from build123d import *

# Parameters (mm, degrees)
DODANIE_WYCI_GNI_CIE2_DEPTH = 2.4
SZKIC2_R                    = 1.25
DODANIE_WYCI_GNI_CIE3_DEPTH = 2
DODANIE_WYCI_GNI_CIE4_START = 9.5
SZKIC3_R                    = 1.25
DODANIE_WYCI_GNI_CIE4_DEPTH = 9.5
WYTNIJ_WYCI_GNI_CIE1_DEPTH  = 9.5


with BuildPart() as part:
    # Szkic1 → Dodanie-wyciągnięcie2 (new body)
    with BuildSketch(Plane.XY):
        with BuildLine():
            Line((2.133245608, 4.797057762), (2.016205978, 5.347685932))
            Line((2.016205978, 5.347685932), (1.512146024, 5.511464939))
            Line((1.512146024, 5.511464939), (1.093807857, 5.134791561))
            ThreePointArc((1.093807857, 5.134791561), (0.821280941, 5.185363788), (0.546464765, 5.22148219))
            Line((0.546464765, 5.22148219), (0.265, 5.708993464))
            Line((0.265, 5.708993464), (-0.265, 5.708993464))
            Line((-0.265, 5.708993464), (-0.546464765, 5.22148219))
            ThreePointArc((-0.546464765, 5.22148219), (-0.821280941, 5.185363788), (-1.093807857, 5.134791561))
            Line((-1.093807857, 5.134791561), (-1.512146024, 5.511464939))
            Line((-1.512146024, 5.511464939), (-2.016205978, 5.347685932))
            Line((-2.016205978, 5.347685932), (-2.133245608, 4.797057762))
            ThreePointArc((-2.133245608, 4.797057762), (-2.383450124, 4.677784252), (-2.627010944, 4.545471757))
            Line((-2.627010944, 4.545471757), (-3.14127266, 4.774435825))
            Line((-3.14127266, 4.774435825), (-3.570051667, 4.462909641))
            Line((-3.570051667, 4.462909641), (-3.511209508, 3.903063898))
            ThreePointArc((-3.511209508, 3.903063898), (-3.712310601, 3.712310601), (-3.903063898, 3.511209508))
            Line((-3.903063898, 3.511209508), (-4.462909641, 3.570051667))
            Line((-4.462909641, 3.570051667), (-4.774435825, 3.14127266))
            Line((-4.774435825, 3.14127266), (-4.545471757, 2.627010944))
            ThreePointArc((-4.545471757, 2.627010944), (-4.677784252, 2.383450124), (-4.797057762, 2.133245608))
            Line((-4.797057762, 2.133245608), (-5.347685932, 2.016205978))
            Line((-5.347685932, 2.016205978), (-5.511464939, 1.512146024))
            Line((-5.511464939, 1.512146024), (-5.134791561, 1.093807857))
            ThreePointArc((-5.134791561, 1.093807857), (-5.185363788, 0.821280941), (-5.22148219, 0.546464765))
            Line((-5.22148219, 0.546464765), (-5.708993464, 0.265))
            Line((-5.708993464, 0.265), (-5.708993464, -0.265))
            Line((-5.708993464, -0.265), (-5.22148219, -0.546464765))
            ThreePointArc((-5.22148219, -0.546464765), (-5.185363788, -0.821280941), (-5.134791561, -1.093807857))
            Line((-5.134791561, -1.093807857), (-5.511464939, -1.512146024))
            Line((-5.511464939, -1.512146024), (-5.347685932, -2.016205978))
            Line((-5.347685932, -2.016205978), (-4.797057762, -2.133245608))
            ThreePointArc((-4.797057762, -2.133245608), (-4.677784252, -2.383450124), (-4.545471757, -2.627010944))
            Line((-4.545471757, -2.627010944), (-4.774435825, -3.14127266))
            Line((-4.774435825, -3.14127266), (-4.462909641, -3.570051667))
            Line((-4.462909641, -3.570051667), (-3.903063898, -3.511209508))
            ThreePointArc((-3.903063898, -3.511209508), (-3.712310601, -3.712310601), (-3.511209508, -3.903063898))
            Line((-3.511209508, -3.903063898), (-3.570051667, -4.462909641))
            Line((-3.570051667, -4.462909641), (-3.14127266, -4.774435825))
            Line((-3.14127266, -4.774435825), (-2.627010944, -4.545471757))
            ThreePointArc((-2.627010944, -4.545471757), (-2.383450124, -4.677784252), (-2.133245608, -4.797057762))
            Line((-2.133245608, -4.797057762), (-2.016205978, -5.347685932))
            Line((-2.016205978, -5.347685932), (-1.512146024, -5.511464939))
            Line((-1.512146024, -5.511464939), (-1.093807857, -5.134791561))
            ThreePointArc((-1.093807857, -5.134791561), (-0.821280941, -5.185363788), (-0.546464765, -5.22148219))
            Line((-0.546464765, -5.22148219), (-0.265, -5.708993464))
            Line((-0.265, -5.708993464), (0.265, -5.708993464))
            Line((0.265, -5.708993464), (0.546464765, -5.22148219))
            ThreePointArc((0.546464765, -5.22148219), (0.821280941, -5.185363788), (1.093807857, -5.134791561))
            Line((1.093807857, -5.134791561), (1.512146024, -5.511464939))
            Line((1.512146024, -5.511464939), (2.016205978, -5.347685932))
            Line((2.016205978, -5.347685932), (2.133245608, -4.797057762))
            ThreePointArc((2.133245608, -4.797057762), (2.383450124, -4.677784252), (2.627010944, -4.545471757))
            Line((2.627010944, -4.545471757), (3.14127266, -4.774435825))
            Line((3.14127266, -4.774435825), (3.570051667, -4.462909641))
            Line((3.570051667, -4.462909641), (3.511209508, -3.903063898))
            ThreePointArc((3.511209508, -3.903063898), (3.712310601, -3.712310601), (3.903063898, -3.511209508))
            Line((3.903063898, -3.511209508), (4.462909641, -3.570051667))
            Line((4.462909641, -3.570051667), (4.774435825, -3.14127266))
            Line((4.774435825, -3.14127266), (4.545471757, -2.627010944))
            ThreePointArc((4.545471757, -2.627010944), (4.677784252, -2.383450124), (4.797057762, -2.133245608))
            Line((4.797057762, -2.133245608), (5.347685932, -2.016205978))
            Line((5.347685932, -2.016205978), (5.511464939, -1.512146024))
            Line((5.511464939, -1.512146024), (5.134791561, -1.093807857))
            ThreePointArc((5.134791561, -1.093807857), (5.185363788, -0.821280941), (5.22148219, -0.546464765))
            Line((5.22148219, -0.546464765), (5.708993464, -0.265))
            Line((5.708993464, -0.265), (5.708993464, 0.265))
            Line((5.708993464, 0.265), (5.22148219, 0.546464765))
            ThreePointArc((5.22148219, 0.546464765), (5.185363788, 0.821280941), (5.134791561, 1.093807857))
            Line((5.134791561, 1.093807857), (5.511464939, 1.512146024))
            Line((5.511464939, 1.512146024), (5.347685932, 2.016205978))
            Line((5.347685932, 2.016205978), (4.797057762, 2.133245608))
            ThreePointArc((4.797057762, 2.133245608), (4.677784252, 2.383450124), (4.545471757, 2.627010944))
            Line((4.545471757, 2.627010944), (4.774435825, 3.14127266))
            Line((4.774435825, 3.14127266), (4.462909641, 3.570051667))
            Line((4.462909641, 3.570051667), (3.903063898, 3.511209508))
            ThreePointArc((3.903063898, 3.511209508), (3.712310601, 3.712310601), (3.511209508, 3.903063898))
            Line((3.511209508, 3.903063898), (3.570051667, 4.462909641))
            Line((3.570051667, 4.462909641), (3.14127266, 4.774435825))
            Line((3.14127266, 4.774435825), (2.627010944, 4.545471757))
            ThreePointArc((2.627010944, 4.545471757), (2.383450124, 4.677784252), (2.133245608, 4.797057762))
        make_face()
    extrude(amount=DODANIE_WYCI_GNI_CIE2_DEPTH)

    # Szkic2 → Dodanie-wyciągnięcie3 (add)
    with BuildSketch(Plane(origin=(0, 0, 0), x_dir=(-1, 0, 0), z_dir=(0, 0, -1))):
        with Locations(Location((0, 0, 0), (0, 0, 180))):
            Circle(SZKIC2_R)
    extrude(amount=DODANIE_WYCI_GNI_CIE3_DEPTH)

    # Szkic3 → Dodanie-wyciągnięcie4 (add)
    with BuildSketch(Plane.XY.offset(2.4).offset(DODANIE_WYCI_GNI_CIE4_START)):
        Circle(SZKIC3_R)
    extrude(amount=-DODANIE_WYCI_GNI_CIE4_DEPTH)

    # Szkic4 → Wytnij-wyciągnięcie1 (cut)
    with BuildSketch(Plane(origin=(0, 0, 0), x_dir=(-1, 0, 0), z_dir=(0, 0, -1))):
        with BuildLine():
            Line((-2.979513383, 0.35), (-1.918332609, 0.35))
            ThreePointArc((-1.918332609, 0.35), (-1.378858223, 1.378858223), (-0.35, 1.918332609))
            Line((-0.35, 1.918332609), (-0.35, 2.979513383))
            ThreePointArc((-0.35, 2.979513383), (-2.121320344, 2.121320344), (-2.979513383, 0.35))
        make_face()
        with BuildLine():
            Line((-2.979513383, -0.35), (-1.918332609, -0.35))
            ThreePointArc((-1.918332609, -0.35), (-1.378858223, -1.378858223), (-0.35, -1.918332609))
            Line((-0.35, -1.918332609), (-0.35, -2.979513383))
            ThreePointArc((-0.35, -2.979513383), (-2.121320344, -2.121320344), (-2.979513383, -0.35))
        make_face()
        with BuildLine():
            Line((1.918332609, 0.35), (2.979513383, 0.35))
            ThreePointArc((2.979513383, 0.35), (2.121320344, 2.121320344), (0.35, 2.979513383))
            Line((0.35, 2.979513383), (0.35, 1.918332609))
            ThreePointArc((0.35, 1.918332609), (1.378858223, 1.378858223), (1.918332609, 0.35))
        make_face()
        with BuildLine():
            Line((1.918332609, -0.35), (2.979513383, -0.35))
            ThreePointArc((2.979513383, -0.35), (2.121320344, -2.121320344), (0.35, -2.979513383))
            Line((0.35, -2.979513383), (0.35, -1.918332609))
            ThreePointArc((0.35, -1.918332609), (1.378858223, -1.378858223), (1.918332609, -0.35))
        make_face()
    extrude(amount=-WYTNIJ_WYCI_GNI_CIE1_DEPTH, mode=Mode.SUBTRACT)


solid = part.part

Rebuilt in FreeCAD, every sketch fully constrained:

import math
import FreeCAD as App
import Part
import Sketcher
from FreeCAD import Vector
Q = App.Units.Quantity

doc = App.newDocument("Part")
body = doc.addObject("PartDesign::Body", "Body")

sketch1 = body.newObject("Sketcher::SketchObject", "Sketch")
sketch1.AttachmentSupport = (doc.getObject("XY_Plane"), [""])
sketch1.MapMode = "FlatFace"
sketch1.addGeometry(Part.LineSegment(Vector(2.1, 4.8, 0), Vector(2, 5.3, 0)), False)
sketch1.addGeometry(Part.LineSegment(Vector(2, 5.3, 0), Vector(1.5, 5.5, 0)), False)
sketch1.addGeometry(Part.LineSegment(Vector(1.5, 5.5, 0), Vector(1.1, 5.1, 0)), False)
sketch1.addGeometry(Part.ArcOfCircle(Part.Circle(Vector(0, 0, 0), Vector(0, 0, 1), 5.3), math.radians(77.97), math.radians(84.03)), False)
sketch1.addGeometry(Part.LineSegment(Vector(0.5, 5.2, 0), Vector(0.3, 5.7, 0)), False)
sketch1.addGeometry(Part.LineSegment(Vector(0.3, 5.7, 0), Vector(-0.3, 5.7, 0)), False)
sketch1.addGeometry(Part.LineSegment(Vector(-0.3, 5.7, 0), Vector(-0.5, 5.2, 0)), False)
sketch1.addGeometry(Part.ArcOfCircle(Part.Circle(Vector(0, 0, 0), Vector(0, 0, 1), 5.3), math.radians(95.97), math.radians(102.03)), False)
sketch1.addGeometry(Part.LineSegment(Vector(-1.1, 5.1, 0), Vector(-1.5, 5.5, 0)), False)
sketch1.addGeometry(Part.LineSegment(Vector(-1.5, 5.5, 0), Vector(-2, 5.3, 0)), False)
sketch1.addGeometry(Part.LineSegment(Vector(-2, 5.3, 0), Vector(-2.1, 4.8, 0)), False)
sketch1.addGeometry(Part.ArcOfCircle(Part.Circle(Vector(0, 0, 0), Vector(0, 0, 1), 5.2), math.radians(113.97), math.radians(120.03)), False)
sketch1.addGeometry(Part.LineSegment(Vector(-2.6, 4.5, 0), Vector(-3.1, 4.8, 0)), False)
sketch1.addGeometry(Part.LineSegment(Vector(-3.1, 4.8, 0), Vector(-3.6, 4.5, 0)), False)
sketch1.addGeometry(Part.LineSegment(Vector(-3.6, 4.5, 0), Vector(-3.5, 3.9, 0)), False)
sketch1.addGeometry(Part.ArcOfCircle(Part.Circle(Vector(0, 0, 0), Vector(0, 0, 1), 5.3), math.radians(131.97), math.radians(138.03)), False)
sketch1.addGeometry(Part.LineSegment(Vector(-3.9, 3.5, 0), Vector(-4.5, 3.6, 0)), False)
sketch1.addGeometry(Part.LineSegment(Vector(-4.5, 3.6, 0), Vector(-4.8, 3.1, 0)), False)
sketch1.addGeometry(Part.LineSegment(Vector(-4.8, 3.1, 0), Vector(-4.5, 2.6, 0)), False)
sketch1.addGeometry(Part.ArcOfCircle(Part.Circle(Vector(0, 0, 0), Vector(0, 0, 1), 5.2), math.radians(149.97), math.radians(156.03)), False)
sketch1.addGeometry(Part.LineSegment(Vector(-4.8, 2.1, 0), Vector(-5.3, 2, 0)), False)
sketch1.addGeometry(Part.LineSegment(Vector(-5.3, 2, 0), Vector(-5.5, 1.5, 0)), False)
sketch1.addGeometry(Part.LineSegment(Vector(-5.5, 1.5, 0), Vector(-5.1, 1.1, 0)), False)
sketch1.addGeometry(Part.ArcOfCircle(Part.Circle(Vector(0, 0, 0), Vector(0, 0, 1), 5.3), math.radians(167.97), math.radians(174.03)), False)
sketch1.addGeometry(Part.LineSegment(Vector(-5.2, 0.5, 0), Vector(-5.7, 0.3, 0)), False)
sketch1.addGeometry(Part.LineSegment(Vector(-5.7, 0.3, 0), Vector(-5.7, -0.3, 0)), False)
sketch1.addGeometry(Part.LineSegment(Vector(-5.7, -0.3, 0), Vector(-5.2, -0.5, 0)), False)
sketch1.addGeometry(Part.ArcOfCircle(Part.Circle(Vector(0, 0, 0), Vector(0, 0, 1), 5.3), math.radians(-174.03), math.radians(-167.97)), False)
sketch1.addGeometry(Part.LineSegment(Vector(-5.1, -1.1, 0), Vector(-5.5, -1.5, 0)), False)
sketch1.addGeometry(Part.LineSegment(Vector(-5.5, -1.5, 0), Vector(-5.3, -2, 0)), False)
sketch1.addGeometry(Part.LineSegment(Vector(-5.3, -2, 0), Vector(-4.8, -2.1, 0)), False)
sketch1.addGeometry(Part.ArcOfCircle(Part.Circle(Vector(0, 0, 0), Vector(0, 0, 1), 5.2), math.radians(-156.03), math.radians(-149.97)), False)
sketch1.addGeometry(Part.LineSegment(Vector(-4.5, -2.6, 0), Vector(-4.8, -3.1, 0)), False)
sketch1.addGeometry(Part.LineSegment(Vector(-4.8, -3.1, 0), Vector(-4.5, -3.6, 0)), False)
sketch1.addGeometry(Part.LineSegment(Vector(-4.5, -3.6, 0), Vector(-3.9, -3.5, 0)), False)
sketch1.addGeometry(Part.ArcOfCircle(Part.Circle(Vector(0, 0, 0), Vector(0, 0, 1), 5.3), math.radians(-138.03), math.radians(-131.97)), False)
sketch1.addGeometry(Part.LineSegment(Vector(-3.5, -3.9, 0), Vector(-3.6, -4.5, 0)), False)
sketch1.addGeometry(Part.LineSegment(Vector(-3.6, -4.5, 0), Vector(-3.1, -4.8, 0)), False)
sketch1.addGeometry(Part.LineSegment(Vector(-3.1, -4.8, 0), Vector(-2.6, -4.5, 0)), False)
sketch1.addGeometry(Part.ArcOfCircle(Part.Circle(Vector(0, 0, 0), Vector(0, 0, 1), 5.2), math.radians(-120.03), math.radians(-113.97)), False)
sketch1.addGeometry(Part.LineSegment(Vector(-2.1, -4.8, 0), Vector(-2, -5.3, 0)), False)
sketch1.addGeometry(Part.LineSegment(Vector(-2, -5.3, 0), Vector(-1.5, -5.5, 0)), False)
sketch1.addGeometry(Part.LineSegment(Vector(-1.5, -5.5, 0), Vector(-1.1, -5.1, 0)), False)
sketch1.addGeometry(Part.ArcOfCircle(Part.Circle(Vector(0, 0, 0), Vector(0, 0, 1), 5.3), math.radians(-102.03), math.radians(-95.97)), False)
sketch1.addGeometry(Part.LineSegment(Vector(-0.5, -5.2, 0), Vector(-0.3, -5.7, 0)), False)
sketch1.addGeometry(Part.LineSegment(Vector(-0.3, -5.7, 0), Vector(0.3, -5.7, 0)), False)
sketch1.addGeometry(Part.LineSegment(Vector(0.3, -5.7, 0), Vector(0.5, -5.2, 0)), False)
sketch1.addGeometry(Part.ArcOfCircle(Part.Circle(Vector(0, 0, 0), Vector(0, 0, 1), 5.3), math.radians(-84.03), math.radians(-77.97)), False)
sketch1.addGeometry(Part.LineSegment(Vector(1.1, -5.1, 0), Vector(1.5, -5.5, 0)), False)
sketch1.addGeometry(Part.LineSegment(Vector(1.5, -5.5, 0), Vector(2, -5.3, 0)), False)
sketch1.addGeometry(Part.LineSegment(Vector(2, -5.3, 0), Vector(2.1, -4.8, 0)), False)
sketch1.addGeometry(Part.ArcOfCircle(Part.Circle(Vector(0, 0, 0), Vector(0, 0, 1), 5.2), math.radians(-66.03), math.radians(-59.97)), False)
sketch1.addGeometry(Part.LineSegment(Vector(2.6, -4.5, 0), Vector(3.1, -4.8, 0)), False)
sketch1.addGeometry(Part.LineSegment(Vector(3.1, -4.8, 0), Vector(3.6, -4.5, 0)), False)
sketch1.addGeometry(Part.LineSegment(Vector(3.6, -4.5, 0), Vector(3.5, -3.9, 0)), False)
sketch1.addGeometry(Part.ArcOfCircle(Part.Circle(Vector(0, 0, 0), Vector(0, 0, 1), 5.3), math.radians(-48.03), math.radians(-41.97)), False)
sketch1.addGeometry(Part.LineSegment(Vector(3.9, -3.5, 0), Vector(4.5, -3.6, 0)), False)
sketch1.addGeometry(Part.LineSegment(Vector(4.5, -3.6, 0), Vector(4.8, -3.1, 0)), False)
sketch1.addGeometry(Part.LineSegment(Vector(4.8, -3.1, 0), Vector(4.5, -2.6, 0)), False)
sketch1.addGeometry(Part.ArcOfCircle(Part.Circle(Vector(0, 0, 0), Vector(0, 0, 1), 5.2), math.radians(-30.03), math.radians(-23.97)), False)
sketch1.addGeometry(Part.LineSegment(Vector(4.8, -2.1, 0), Vector(5.3, -2, 0)), False)
sketch1.addGeometry(Part.LineSegment(Vector(5.3, -2, 0), Vector(5.5, -1.5, 0)), False)
sketch1.addGeometry(Part.LineSegment(Vector(5.5, -1.5, 0), Vector(5.1, -1.1, 0)), False)
sketch1.addGeometry(Part.ArcOfCircle(Part.Circle(Vector(0, 0, 0), Vector(0, 0, 1), 5.3), math.radians(-12.03), math.radians(-5.97)), False)
sketch1.addGeometry(Part.LineSegment(Vector(5.2, -0.5, 0), Vector(5.7, -0.3, 0)), False)
sketch1.addGeometry(Part.LineSegment(Vector(5.7, -0.3, 0), Vector(5.7, 0.3, 0)), False)
sketch1.addGeometry(Part.LineSegment(Vector(5.7, 0.3, 0), Vector(5.2, 0.5, 0)), False)
sketch1.addGeometry(Part.ArcOfCircle(Part.Circle(Vector(0, 0, 0), Vector(0, 0, 1), 5.3), math.radians(5.97), math.radians(12.03)), False)
sketch1.addGeometry(Part.LineSegment(Vector(5.1, 1.1, 0), Vector(5.5, 1.5, 0)), False)
sketch1.addGeometry(Part.LineSegment(Vector(5.5, 1.5, 0), Vector(5.3, 2, 0)), False)
sketch1.addGeometry(Part.LineSegment(Vector(5.3, 2, 0), Vector(4.8, 2.1, 0)), False)
sketch1.addGeometry(Part.ArcOfCircle(Part.Circle(Vector(0, 0, 0), Vector(0, 0, 1), 5.2), math.radians(23.97), math.radians(30.03)), False)
sketch1.addGeometry(Part.LineSegment(Vector(4.5, 2.6, 0), Vector(4.8, 3.1, 0)), False)
sketch1.addGeometry(Part.LineSegment(Vector(4.8, 3.1, 0), Vector(4.5, 3.6, 0)), False)
sketch1.addGeometry(Part.LineSegment(Vector(4.5, 3.6, 0), Vector(3.9, 3.5, 0)), False)
sketch1.addGeometry(Part.ArcOfCircle(Part.Circle(Vector(0, 0, 0), Vector(0, 0, 1), 5.3), math.radians(41.97), math.radians(48.03)), False)
sketch1.addGeometry(Part.LineSegment(Vector(3.5, 3.9, 0), Vector(3.6, 4.5, 0)), False)
sketch1.addGeometry(Part.LineSegment(Vector(3.6, 4.5, 0), Vector(3.1, 4.8, 0)), False)
sketch1.addGeometry(Part.LineSegment(Vector(3.1, 4.8, 0), Vector(2.6, 4.5, 0)), False)
sketch1.addGeometry(Part.ArcOfCircle(Part.Circle(Vector(0, 0, 0), Vector(0, 0, 1), 5.2), math.radians(59.97), math.radians(66.03)), False)
sketch1.addConstraint(Sketcher.Constraint("Coincident", 0, 2, 1, 1))
sketch1.addConstraint(Sketcher.Constraint("Coincident", 1, 2, 2, 1))
sketch1.addConstraint(Sketcher.Constraint("Coincident", 2, 2, 3, 1))
sketch1.addConstraint(Sketcher.Constraint("Coincident", 3, 2, 4, 1))
sketch1.addConstraint(Sketcher.Constraint("Coincident", 4, 2, 5, 1))
sketch1.addConstraint(Sketcher.Constraint("Coincident", 5, 2, 6, 1))
sketch1.addConstraint(Sketcher.Constraint("Coincident", 6, 2, 7, 1))
sketch1.addConstraint(Sketcher.Constraint("Coincident", 7, 2, 8, 1))
sketch1.addConstraint(Sketcher.Constraint("Coincident", 8, 2, 9, 1))
sketch1.addConstraint(Sketcher.Constraint("Coincident", 9, 2, 10, 1))
sketch1.addConstraint(Sketcher.Constraint("Coincident", 10, 2, 11, 1))
sketch1.addConstraint(Sketcher.Constraint("Coincident", 11, 2, 12, 1))
sketch1.addConstraint(Sketcher.Constraint("Coincident", 12, 2, 13, 1))
sketch1.addConstraint(Sketcher.Constraint("Coincident", 13, 2, 14, 1))
sketch1.addConstraint(Sketcher.Constraint("Coincident", 14, 2, 15, 1))
sketch1.addConstraint(Sketcher.Constraint("Coincident", 15, 2, 16, 1))
sketch1.addConstraint(Sketcher.Constraint("Coincident", 16, 2, 17, 1))
sketch1.addConstraint(Sketcher.Constraint("Coincident", 17, 2, 18, 1))
sketch1.addConstraint(Sketcher.Constraint("Coincident", 18, 2, 19, 1))
sketch1.addConstraint(Sketcher.Constraint("Coincident", 19, 2, 20, 1))
sketch1.addConstraint(Sketcher.Constraint("Coincident", 20, 2, 21, 1))
sketch1.addConstraint(Sketcher.Constraint("Coincident", 21, 2, 22, 1))
sketch1.addConstraint(Sketcher.Constraint("Coincident", 22, 2, 23, 1))
sketch1.addConstraint(Sketcher.Constraint("Coincident", 23, 2, 24, 1))
sketch1.addConstraint(Sketcher.Constraint("Coincident", 24, 2, 25, 1))
sketch1.addConstraint(Sketcher.Constraint("Coincident", 25, 2, 26, 1))
sketch1.addConstraint(Sketcher.Constraint("Coincident", 26, 2, 27, 1))
sketch1.addConstraint(Sketcher.Constraint("Coincident", 27, 2, 28, 1))
sketch1.addConstraint(Sketcher.Constraint("Coincident", 28, 2, 29, 1))
sketch1.addConstraint(Sketcher.Constraint("Coincident", 29, 2, 30, 1))
sketch1.addConstraint(Sketcher.Constraint("Coincident", 30, 2, 31, 1))
sketch1.addConstraint(Sketcher.Constraint("Coincident", 31, 2, 32, 1))
sketch1.addConstraint(Sketcher.Constraint("Coincident", 32, 2, 33, 1))
sketch1.addConstraint(Sketcher.Constraint("Coincident", 33, 2, 34, 1))
sketch1.addConstraint(Sketcher.Constraint("Coincident", 34, 2, 35, 1))
sketch1.addConstraint(Sketcher.Constraint("Coincident", 35, 2, 36, 1))
sketch1.addConstraint(Sketcher.Constraint("Coincident", 36, 2, 37, 1))
sketch1.addConstraint(Sketcher.Constraint("Coincident", 37, 2, 38, 1))
sketch1.addConstraint(Sketcher.Constraint("Coincident", 38, 2, 39, 1))
sketch1.addConstraint(Sketcher.Constraint("Coincident", 39, 2, 40, 1))
sketch1.addConstraint(Sketcher.Constraint("Coincident", 40, 2, 41, 1))
sketch1.addConstraint(Sketcher.Constraint("Coincident", 41, 2, 42, 1))
sketch1.addConstraint(Sketcher.Constraint("Coincident", 42, 2, 43, 1))
sketch1.addConstraint(Sketcher.Constraint("Coincident", 43, 2, 44, 1))
sketch1.addConstraint(Sketcher.Constraint("Coincident", 44, 2, 45, 1))
sketch1.addConstraint(Sketcher.Constraint("Coincident", 45, 2, 46, 1))
sketch1.addConstraint(Sketcher.Constraint("Coincident", 46, 2, 47, 1))
sketch1.addConstraint(Sketcher.Constraint("Coincident", 47, 2, 48, 1))
sketch1.addConstraint(Sketcher.Constraint("Coincident", 48, 2, 49, 1))
sketch1.addConstraint(Sketcher.Constraint("Coincident", 49, 2, 50, 1))
sketch1.addConstraint(Sketcher.Constraint("Coincident", 50, 2, 51, 1))
sketch1.addConstraint(Sketcher.Constraint("Coincident", 51, 2, 52, 1))
sketch1.addConstraint(Sketcher.Constraint("Coincident", 52, 2, 53, 1))
sketch1.addConstraint(Sketcher.Constraint("Coincident", 53, 2, 54, 1))
sketch1.addConstraint(Sketcher.Constraint("Coincident", 54, 2, 55, 1))
sketch1.addConstraint(Sketcher.Constraint("Coincident", 55, 2, 56, 1))
sketch1.addConstraint(Sketcher.Constraint("Coincident", 56, 2, 57, 1))
sketch1.addConstraint(Sketcher.Constraint("Coincident", 57, 2, 58, 1))
sketch1.addConstraint(Sketcher.Constraint("Coincident", 58, 2, 59, 1))
sketch1.addConstraint(Sketcher.Constraint("Coincident", 59, 2, 60, 1))
sketch1.addConstraint(Sketcher.Constraint("Coincident", 60, 2, 61, 1))
sketch1.addConstraint(Sketcher.Constraint("Coincident", 61, 2, 62, 1))
sketch1.addConstraint(Sketcher.Constraint("Coincident", 62, 2, 63, 1))
sketch1.addConstraint(Sketcher.Constraint("Coincident", 63, 2, 64, 1))
sketch1.addConstraint(Sketcher.Constraint("Coincident", 64, 2, 65, 1))
sketch1.addConstraint(Sketcher.Constraint("Coincident", 65, 2, 66, 1))
sketch1.addConstraint(Sketcher.Constraint("Coincident", 66, 2, 67, 1))
sketch1.addConstraint(Sketcher.Constraint("Coincident", 67, 2, 68, 1))
sketch1.addConstraint(Sketcher.Constraint("Coincident", 68, 2, 69, 1))
sketch1.addConstraint(Sketcher.Constraint("Coincident", 69, 2, 70, 1))
sketch1.addConstraint(Sketcher.Constraint("Coincident", 70, 2, 71, 1))
sketch1.addConstraint(Sketcher.Constraint("Coincident", 71, 2, 72, 1))
sketch1.addConstraint(Sketcher.Constraint("Coincident", 72, 2, 73, 1))
sketch1.addConstraint(Sketcher.Constraint("Coincident", 73, 2, 74, 1))
sketch1.addConstraint(Sketcher.Constraint("Coincident", 74, 2, 75, 1))
sketch1.addConstraint(Sketcher.Constraint("Coincident", 75, 2, 76, 1))
sketch1.addConstraint(Sketcher.Constraint("Coincident", 76, 2, 77, 1))
sketch1.addConstraint(Sketcher.Constraint("Coincident", 77, 2, 78, 1))
sketch1.addConstraint(Sketcher.Constraint("Coincident", 78, 2, 79, 1))
sketch1.addConstraint(Sketcher.Constraint("Coincident", 79, 2, 0, 1))
sketch1.addConstraint(Sketcher.Constraint("Horizontal", 5))
sketch1.addConstraint(Sketcher.Constraint("Vertical", 25))
sketch1.addConstraint(Sketcher.Constraint("Horizontal", 45))
sketch1.addConstraint(Sketcher.Constraint("Vertical", 65))
sketch1.addConstraint(Sketcher.Constraint("Coincident", 3, 3, -1, 1))
sketch1.addConstraint(Sketcher.Constraint("Coincident", 7, 3, -1, 1))
sketch1.addConstraint(Sketcher.Constraint("Coincident", 11, 3, -1, 1))
sketch1.addConstraint(Sketcher.Constraint("Coincident", 15, 3, -1, 1))
sketch1.addConstraint(Sketcher.Constraint("Coincident", 19, 3, -1, 1))
sketch1.addConstraint(Sketcher.Constraint("Coincident", 23, 3, -1, 1))
sketch1.addConstraint(Sketcher.Constraint("Coincident", 27, 3, -1, 1))
sketch1.addConstraint(Sketcher.Constraint("Coincident", 31, 3, -1, 1))
sketch1.addConstraint(Sketcher.Constraint("Coincident", 35, 3, -1, 1))
sketch1.addConstraint(Sketcher.Constraint("Coincident", 39, 3, -1, 1))
sketch1.addConstraint(Sketcher.Constraint("Coincident", 43, 3, -1, 1))
sketch1.addConstraint(Sketcher.Constraint("Coincident", 47, 3, -1, 1))
sketch1.addConstraint(Sketcher.Constraint("Coincident", 51, 3, -1, 1))
sketch1.addConstraint(Sketcher.Constraint("Coincident", 55, 3, -1, 1))
sketch1.addConstraint(Sketcher.Constraint("Coincident", 59, 3, -1, 1))
sketch1.addConstraint(Sketcher.Constraint("Coincident", 63, 3, -1, 1))
sketch1.addConstraint(Sketcher.Constraint("Coincident", 67, 3, -1, 1))
sketch1.addConstraint(Sketcher.Constraint("Coincident", 71, 3, -1, 1))
sketch1.addConstraint(Sketcher.Constraint("Coincident", 75, 3, -1, 1))
sketch1.addConstraint(Sketcher.Constraint("Coincident", 79, 3, -1, 1))
sketch1.addConstraint(Sketcher.Constraint("Equal", 3, 7))
sketch1.addConstraint(Sketcher.Constraint("Equal", 7, 11))
sketch1.addConstraint(Sketcher.Constraint("Equal", 11, 15))
sketch1.addConstraint(Sketcher.Constraint("Equal", 15, 19))
sketch1.addConstraint(Sketcher.Constraint("Equal", 19, 23))
sketch1.addConstraint(Sketcher.Constraint("Equal", 23, 27))
sketch1.addConstraint(Sketcher.Constraint("Equal", 27, 31))
sketch1.addConstraint(Sketcher.Constraint("Equal", 31, 35))
sketch1.addConstraint(Sketcher.Constraint("Equal", 35, 39))
sketch1.addConstraint(Sketcher.Constraint("Equal", 39, 43))
sketch1.addConstraint(Sketcher.Constraint("Equal", 43, 47))
sketch1.addConstraint(Sketcher.Constraint("Equal", 47, 51))
sketch1.addConstraint(Sketcher.Constraint("Equal", 51, 55))
sketch1.addConstraint(Sketcher.Constraint("Equal", 55, 59))
sketch1.addConstraint(Sketcher.Constraint("Equal", 59, 63))
sketch1.addConstraint(Sketcher.Constraint("Equal", 63, 67))
sketch1.addConstraint(Sketcher.Constraint("Equal", 67, 71))
sketch1.addConstraint(Sketcher.Constraint("Equal", 71, 75))
sketch1.addConstraint(Sketcher.Constraint("Equal", 75, 79))
sketch1.addConstraint(Sketcher.Constraint("Symmetric", 0, 2, 40, 2, -1, 1))
sketch1.addConstraint(Sketcher.Constraint("Symmetric", 1, 2, 41, 2, -1, 1))
sketch1.addConstraint(Sketcher.Constraint("Symmetric", 4, 2, 44, 2, -1, 1))
sketch1.addConstraint(Sketcher.Constraint("Symmetric", 8, 2, 48, 2, -1, 1))
sketch1.addConstraint(Sketcher.Constraint("Symmetric", 9, 2, 49, 2, -1, 1))
sketch1.addConstraint(Sketcher.Constraint("Symmetric", 12, 2, 52, 2, -1, 1))
sketch1.addConstraint(Sketcher.Constraint("Symmetric", 13, 2, 53, 2, -1, 1))
sketch1.addConstraint(Sketcher.Constraint("Symmetric", 16, 2, 56, 2, -1, 1))
sketch1.addConstraint(Sketcher.Constraint("Symmetric", 17, 2, 57, 2, -1, 1))
sketch1.addConstraint(Sketcher.Constraint("Symmetric", 20, 2, 60, 2, -1, 1))
sketch1.addConstraint(Sketcher.Constraint("Symmetric", 21, 2, 61, 2, -1, 1))
sketch1.addConstraint(Sketcher.Constraint("Symmetric", 24, 2, 64, 2, -1, 1))
sketch1.addConstraint(Sketcher.Constraint("Symmetric", 28, 2, 68, 2, -1, 1))
sketch1.addConstraint(Sketcher.Constraint("Symmetric", 29, 2, 69, 2, -1, 1))
sketch1.addConstraint(Sketcher.Constraint("Symmetric", 32, 2, 72, 2, -1, 1))
sketch1.addConstraint(Sketcher.Constraint("Symmetric", 33, 2, 73, 2, -1, 1))
sketch1.addConstraint(Sketcher.Constraint("Symmetric", 36, 2, 76, 2, -1, 1))
sketch1.addConstraint(Sketcher.Constraint("Symmetric", 37, 2, 77, 2, -1, 1))
sketch1.addConstraint(Sketcher.Constraint("Symmetric", 1, 2, 8, 2, -2))
sketch1.addConstraint(Sketcher.Constraint("Symmetric", 0, 2, 9, 2, -2))
sketch1.addConstraint(Sketcher.Constraint("Symmetric", 37, 2, 52, 2, -2))
sketch1.addConstraint(Sketcher.Constraint("Symmetric", 36, 2, 53, 2, -2))
sketch1.addConstraint(Sketcher.Constraint("Symmetric", 33, 2, 56, 2, -2))
sketch1.addConstraint(Sketcher.Constraint("Symmetric", 32, 2, 57, 2, -2))
sketch1.addConstraint(Sketcher.Constraint("Symmetric", 29, 2, 60, 2, -2))
sketch1.addConstraint(Sketcher.Constraint("Symmetric", 28, 2, 61, 2, -2))
sketch1.addConstraint(Sketcher.Constraint("Perpendicular", 0, 20))
sketch1.addConstraint(Sketcher.Constraint("Perpendicular", 1, 21))
sketch1.addConstraint(Sketcher.Constraint("Perpendicular", 2, 22))
sketch1.addConstraint(Sketcher.Constraint("Perpendicular", 4, 24))
sketch1.addConstraint(Sketcher.Constraint("Perpendicular", 6, 26))
sketch1.addConstraint(Sketcher.Constraint("Perpendicular", 8, 28))
sketch1.addConstraint(Sketcher.Constraint("Perpendicular", 10, 30))
sketch1.addConstraint(Sketcher.Constraint("Perpendicular", 12, 32))
sketch1.addConstraint(Sketcher.Constraint("Perpendicular", 13, 33))
sketch1.addConstraint(Sketcher.Constraint("Perpendicular", 14, 34))
sketch1.addConstraint(Sketcher.Constraint("Perpendicular", 16, 36))
sketch1.addConstraint(Sketcher.Constraint("Perpendicular", 18, 38))
sketch1.addConstraint(Sketcher.Constraint("Perpendicular", 20, 40))
sketch1.addConstraint(Sketcher.Constraint("Perpendicular", 22, 42))
sketch1.addConstraint(Sketcher.Constraint("Perpendicular", 24, 44))
sketch1.addConstraint(Sketcher.Constraint("Perpendicular", 26, 46))
sketch1.addConstraint(Sketcher.Constraint("Perpendicular", 28, 48))
sketch1.addConstraint(Sketcher.Constraint("Perpendicular", 30, 50))
sketch1.addConstraint(Sketcher.Constraint("Perpendicular", 32, 52))
sketch1.addConstraint(Sketcher.Constraint("Perpendicular", 34, 54))
sketch1.addConstraint(Sketcher.Constraint("Perpendicular", 36, 56))
sketch1.addConstraint(Sketcher.Constraint("Perpendicular", 38, 58))
sketch1.addConstraint(Sketcher.Constraint("Perpendicular", 40, 60))
sketch1.addConstraint(Sketcher.Constraint("Perpendicular", 42, 62))
sketch1.addConstraint(Sketcher.Constraint("Perpendicular", 44, 64))
sketch1.addConstraint(Sketcher.Constraint("Perpendicular", 46, 66))
sketch1.addConstraint(Sketcher.Constraint("Perpendicular", 48, 68))
sketch1.addConstraint(Sketcher.Constraint("Perpendicular", 50, 70))
sketch1.addConstraint(Sketcher.Constraint("Perpendicular", 52, 72))
sketch1.addConstraint(Sketcher.Constraint("Perpendicular", 54, 74))
sketch1.addConstraint(Sketcher.Constraint("Perpendicular", 56, 76))
sketch1.addConstraint(Sketcher.Constraint("Perpendicular", 58, 78))
sketch1.addConstraint(Sketcher.Constraint("Horizontal", 3, 2, 6, 2))
sketch1.addConstraint(Sketcher.Constraint("Horizontal", 2, 2, 7, 2))
sketch1.addConstraint(Sketcher.Constraint("Horizontal", 43, 2, 46, 2))
sketch1.addConstraint(Sketcher.Constraint("Horizontal", 39, 2, 50, 2))
sketch1.addConstraint(Sketcher.Constraint("Horizontal", 38, 2, 51, 2))
sketch1.addConstraint(Sketcher.Constraint("Horizontal", 35, 2, 54, 2))
sketch1.addConstraint(Sketcher.Constraint("Horizontal", 26, 2, 63, 2))
sketch1.addConstraint(Sketcher.Constraint("Horizontal", 25, 2, 64, 2))
sketch1.addConstraint(Sketcher.Constraint("Horizontal", 24, 2, 65, 2))
sketch1.addConstraint(Sketcher.Constraint("Equal", 45, 25))
sketch1.addConstraint(Sketcher.Constraint("Equal", 0, 2))
sketch1.addConstraint(Sketcher.Constraint("Equal", 2, 4))
sketch1.addConstraint(Sketcher.Constraint("Equal", 10, 12))
sketch1.addConstraint(Sketcher.Constraint("Equal", 9, 13))
sketch1.addConstraint(Sketcher.Constraint("Equal", 12, 14))
sketch1.addConstraint(Sketcher.Constraint("Equal", 14, 16))
sketch1.addConstraint(Sketcher.Constraint("Equal", 13, 17))
sketch1.addConstraint(Sketcher.Constraint("Equal", 16, 18))
sketch1.addConstraint(Sketcher.Constraint("Equal", 18, 20))
sketch1.addConstraint(Sketcher.Constraint("Equal", 17, 21))
sketch1.addConstraint(Sketcher.Constraint("Equal", 20, 22))
sketch1.addConstraint(Sketcher.Constraint("Equal", 22, 24))
sketch1.addConstraint(Sketcher.Constraint("Angle", 0, Q("102 deg")))
sketch1.addConstraint(Sketcher.Constraint("Angle", 1, Q("162 deg")))
sketch1.addConstraint(Sketcher.Constraint("Angle", 2, Q("-138 deg")))
sketch1.addConstraint(Sketcher.Constraint("Angle", 4, Q("120 deg")))
sketch1.addConstraint(Sketcher.Constraint("Angle", 12, Q("156 deg")))
sketch1.addConstraint(Sketcher.Constraint("Angle", 13, Q("-144 deg")))
sketch1.addConstraint(Sketcher.Constraint("Angle", 14, Q("-84 deg")))
sketch1.addConstraint(Sketcher.Constraint("Radius", 3, 5.25))
sketch1.addConstraint(Sketcher.Constraint("DistanceX", 5, 2, 5, 1, 0.53))
sketch1.addConstraint(Sketcher.Constraint("Distance", 1, 0.53))
sketch1.addConstraint(Sketcher.Constraint("Distance", 0, 0.56293))
pad1 = body.newObject("PartDesign::Pad", "Pad")
pad1.Profile = sketch1
pad1.Length = 2.4

sketch2 = body.newObject("Sketcher::SketchObject", "Sketch001")
sketch2.AttachmentSupport = (doc.getObject("XY_Plane"), [""])
sketch2.MapMode = "FlatFace"
sketch2.addGeometry(Part.Circle(Vector(0, 0, 0), Vector(0, 0, 1), 1.2), False)
sketch2.addConstraint(Sketcher.Constraint("Coincident", 0, 3, -1, 1))
sketch2.addConstraint(Sketcher.Constraint("Diameter", 0, 2.5))
pad2 = body.newObject("PartDesign::Pad", "Pad001")
pad2.Profile = sketch2
pad2.Length = 2
pad2.Reversed = True

sketch3 = body.newObject("Sketcher::SketchObject", "Sketch002")
sketch3.AttachmentSupport = (doc.getObject("XY_Plane"), [""])
sketch3.MapMode = "FlatFace"
sketch3.AttachmentOffset = App.Placement(Vector(0, 0, 11.9), App.Rotation())
sketch3.addGeometry(Part.Circle(Vector(0, 0, 0), Vector(0, 0, 1), 1.2), False)
sketch3.addConstraint(Sketcher.Constraint("Coincident", 0, 3, -1, 1))
sketch3.addConstraint(Sketcher.Constraint("Diameter", 0, 2.5))
pad3 = body.newObject("PartDesign::Pad", "Pad002")
pad3.Profile = sketch3
pad3.Length = 9.5
pad3.Reversed = True

sketch4 = body.newObject("Sketcher::SketchObject", "Sketch003")
sketch4.AttachmentSupport = (doc.getObject("XY_Plane"), [""])
sketch4.MapMode = "FlatFace"
sketch4.addGeometry(Part.LineSegment(Vector(3, 0.3, 0), Vector(1.9, 0.3, 0)), False)
sketch4.addGeometry(Part.ArcOfCircle(Part.Circle(Vector(0, 0, 0), Vector(0, 0, 1), 1.9), math.radians(10), math.radians(80)), False)
sketch4.addGeometry(Part.LineSegment(Vector(0.3, 1.9, 0), Vector(0.3, 3, 0)), False)
sketch4.addGeometry(Part.ArcOfCircle(Part.Circle(Vector(0, 0, 0), Vector(0, 0, 1), 3), math.radians(7), math.radians(83)), False)
sketch4.addGeometry(Part.LineSegment(Vector(1.9, -0.3, 0), Vector(3, -0.3, 0)), False)
sketch4.addGeometry(Part.ArcOfCircle(Part.Circle(Vector(0, 0, 0), Vector(0, 0, 1), 3), math.radians(-83), math.radians(-7)), False)
sketch4.addGeometry(Part.LineSegment(Vector(0.3, -3, 0), Vector(0.3, -1.9, 0)), False)
sketch4.addGeometry(Part.ArcOfCircle(Part.Circle(Vector(0, 0, 0), Vector(0, 0, 1), 1.9), math.radians(-80), math.radians(-10)), False)
sketch4.addGeometry(Part.LineSegment(Vector(-1.9, 0.3, 0), Vector(-3, 0.3, 0)), False)
sketch4.addGeometry(Part.ArcOfCircle(Part.Circle(Vector(0, 0, 0), Vector(0, 0, 1), 3), math.radians(97), math.radians(173)), False)
sketch4.addGeometry(Part.LineSegment(Vector(-0.3, 3, 0), Vector(-0.3, 1.9, 0)), False)
sketch4.addGeometry(Part.ArcOfCircle(Part.Circle(Vector(0, 0, 0), Vector(0, 0, 1), 1.9), math.radians(100), math.radians(170)), False)
sketch4.addGeometry(Part.LineSegment(Vector(-3, -0.3, 0), Vector(-1.9, -0.3, 0)), False)
sketch4.addGeometry(Part.ArcOfCircle(Part.Circle(Vector(0, 0, 0), Vector(0, 0, 1), 1.9), math.radians(-170), math.radians(-100)), False)
sketch4.addGeometry(Part.LineSegment(Vector(-0.3, -1.9, 0), Vector(-0.3, -3, 0)), False)
sketch4.addGeometry(Part.ArcOfCircle(Part.Circle(Vector(0, 0, 0), Vector(0, 0, 1), 3), math.radians(-173), math.radians(-97)), False)
sketch4.addConstraint(Sketcher.Constraint("Coincident", 0, 2, 1, 1))
sketch4.addConstraint(Sketcher.Constraint("Coincident", 1, 2, 2, 1))
sketch4.addConstraint(Sketcher.Constraint("Coincident", 2, 2, 3, 2))
sketch4.addConstraint(Sketcher.Constraint("Coincident", 3, 1, 0, 1))
sketch4.addConstraint(Sketcher.Constraint("Coincident", 4, 2, 5, 2))
sketch4.addConstraint(Sketcher.Constraint("Coincident", 5, 1, 6, 1))
sketch4.addConstraint(Sketcher.Constraint("Coincident", 6, 2, 7, 1))
sketch4.addConstraint(Sketcher.Constraint("Coincident", 7, 2, 4, 1))
sketch4.addConstraint(Sketcher.Constraint("Coincident", 8, 2, 9, 2))
sketch4.addConstraint(Sketcher.Constraint("Coincident", 9, 1, 10, 1))
sketch4.addConstraint(Sketcher.Constraint("Coincident", 10, 2, 11, 1))
sketch4.addConstraint(Sketcher.Constraint("Coincident", 11, 2, 8, 1))
sketch4.addConstraint(Sketcher.Constraint("Coincident", 12, 2, 13, 1))
sketch4.addConstraint(Sketcher.Constraint("Coincident", 13, 2, 14, 1))
sketch4.addConstraint(Sketcher.Constraint("Coincident", 14, 2, 15, 2))
sketch4.addConstraint(Sketcher.Constraint("Coincident", 15, 1, 12, 1))
sketch4.addConstraint(Sketcher.Constraint("Horizontal", 0))
sketch4.addConstraint(Sketcher.Constraint("Vertical", 2))
sketch4.addConstraint(Sketcher.Constraint("Horizontal", 4))
sketch4.addConstraint(Sketcher.Constraint("Vertical", 6))
sketch4.addConstraint(Sketcher.Constraint("Horizontal", 8))
sketch4.addConstraint(Sketcher.Constraint("Vertical", 10))
sketch4.addConstraint(Sketcher.Constraint("Horizontal", 12))
sketch4.addConstraint(Sketcher.Constraint("Vertical", 14))
sketch4.addConstraint(Sketcher.Constraint("Coincident", 1, 3, -1, 1))
sketch4.addConstraint(Sketcher.Constraint("Coincident", 3, 3, -1, 1))
sketch4.addConstraint(Sketcher.Constraint("Coincident", 5, 3, -1, 1))
sketch4.addConstraint(Sketcher.Constraint("Coincident", 7, 3, -1, 1))
sketch4.addConstraint(Sketcher.Constraint("Coincident", 9, 3, -1, 1))
sketch4.addConstraint(Sketcher.Constraint("Coincident", 11, 3, -1, 1))
sketch4.addConstraint(Sketcher.Constraint("Coincident", 13, 3, -1, 1))
sketch4.addConstraint(Sketcher.Constraint("Coincident", 15, 3, -1, 1))
sketch4.addConstraint(Sketcher.Constraint("Equal", 3, 5))
sketch4.addConstraint(Sketcher.Constraint("Equal", 1, 7))
sketch4.addConstraint(Sketcher.Constraint("Equal", 5, 9))
sketch4.addConstraint(Sketcher.Constraint("Equal", 7, 11))
sketch4.addConstraint(Sketcher.Constraint("Equal", 11, 13))
sketch4.addConstraint(Sketcher.Constraint("Equal", 9, 15))
sketch4.addConstraint(Sketcher.Constraint("Horizontal", 3, 1, 8, 2))
sketch4.addConstraint(Sketcher.Constraint("Horizontal", 2, 2, 9, 1))
sketch4.addConstraint(Sketcher.Constraint("Horizontal", 7, 2, 12, 2))
sketch4.addConstraint(Sketcher.Constraint("Horizontal", 6, 2, 13, 2))
sketch4.addConstraint(Sketcher.Constraint("Vertical", 3, 1, 4, 2))
sketch4.addConstraint(Sketcher.Constraint("Vertical", 2, 2, 5, 1))
sketch4.addConstraint(Sketcher.Constraint("Equal", 12, 2))
sketch4.addConstraint(Sketcher.Constraint("Radius", 3, 3.0))
sketch4.addConstraint(Sketcher.Constraint("Radius", 1, 1.95))
sketch4.addConstraint(Sketcher.Constraint("DistanceY", 4, 2, 3, 1, 0.7))
pocket1 = body.newObject("PartDesign::Pocket", "Pocket")
pocket1.Profile = sketch4
pocket1.Length = 9.5
pocket1.Reversed = True

doc.recompute()
